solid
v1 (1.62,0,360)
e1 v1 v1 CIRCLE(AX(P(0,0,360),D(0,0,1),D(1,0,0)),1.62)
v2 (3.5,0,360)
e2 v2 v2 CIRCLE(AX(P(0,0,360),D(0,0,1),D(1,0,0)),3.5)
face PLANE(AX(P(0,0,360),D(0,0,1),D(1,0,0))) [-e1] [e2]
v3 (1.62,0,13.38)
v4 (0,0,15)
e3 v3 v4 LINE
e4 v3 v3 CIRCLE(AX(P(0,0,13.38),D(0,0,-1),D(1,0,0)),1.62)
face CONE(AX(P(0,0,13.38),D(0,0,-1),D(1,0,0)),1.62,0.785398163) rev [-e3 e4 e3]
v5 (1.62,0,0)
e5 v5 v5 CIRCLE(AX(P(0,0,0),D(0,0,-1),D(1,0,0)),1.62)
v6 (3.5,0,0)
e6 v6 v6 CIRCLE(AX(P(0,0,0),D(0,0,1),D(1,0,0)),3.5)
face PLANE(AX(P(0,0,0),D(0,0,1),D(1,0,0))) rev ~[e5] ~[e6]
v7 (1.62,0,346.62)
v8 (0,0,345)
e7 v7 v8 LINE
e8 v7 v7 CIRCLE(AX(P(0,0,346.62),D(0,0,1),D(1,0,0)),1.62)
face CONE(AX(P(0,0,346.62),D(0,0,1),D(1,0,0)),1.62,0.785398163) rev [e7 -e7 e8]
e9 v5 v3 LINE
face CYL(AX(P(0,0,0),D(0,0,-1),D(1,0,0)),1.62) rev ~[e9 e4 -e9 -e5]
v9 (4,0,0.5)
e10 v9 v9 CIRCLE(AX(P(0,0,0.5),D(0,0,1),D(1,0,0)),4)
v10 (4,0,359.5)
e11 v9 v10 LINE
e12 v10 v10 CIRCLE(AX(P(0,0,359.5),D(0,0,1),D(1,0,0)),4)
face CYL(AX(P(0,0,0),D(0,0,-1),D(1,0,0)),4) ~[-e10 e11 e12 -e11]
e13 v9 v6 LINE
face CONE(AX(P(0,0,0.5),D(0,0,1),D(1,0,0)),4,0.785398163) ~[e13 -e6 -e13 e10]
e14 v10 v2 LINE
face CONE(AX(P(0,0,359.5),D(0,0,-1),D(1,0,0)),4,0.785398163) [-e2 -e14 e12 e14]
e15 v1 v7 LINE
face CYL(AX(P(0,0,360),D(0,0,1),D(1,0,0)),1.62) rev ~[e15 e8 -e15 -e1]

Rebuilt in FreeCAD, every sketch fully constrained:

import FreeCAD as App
import Part
import Sketcher
from FreeCAD import Vector
Q = App.Units.Quantity


def edges_at(feature, points):
    """Names of the edges that pass closest to the given points."""
    edges = feature.Shape.Edges
    near = lambda p: min(range(len(edges)), key=lambda i: edges[i].distToShape(Part.Vertex(*p))[0])
    return sorted({f"Edge{near(p) + 1}" for p in points})

doc = App.newDocument("Part")
body = doc.addObject("PartDesign::Body", "Body")

sketch1 = doc.addObject("Sketcher::SketchObject", "Sketch")
body.addObject(sketch1)
sketch1.AttachmentSupport = (doc.XY_Plane, [""])
sketch1.MapMode = "FlatFace"
sketch1.addGeometry(Part.Circle(Vector(0, 0, 0), Vector(0, 0, 1), 4), False)
sketch1.addConstraint([
    Sketcher.Constraint("Coincident", 0, 3, -1, 1),
    Sketcher.Constraint("Diameter", 0, Q("8 mm")),
])
pad1 = doc.addObject("PartDesign::Pad", "Pad")
body.addObject(pad1)
pad1.Profile = sketch1
pad1.Length = 360
doc.recompute()

chamfer = doc.addObject("PartDesign::Chamfer", "Chamfer")
body.addObject(chamfer)
chamfer.Base = (pad1, edges_at(pad1, [(-4, 0, 0), (-4, 0, 360)]))
chamfer.Size = 0.5

sketch2 = doc.addObject("Sketcher::SketchObject", "Sketch001")
body.addObject(sketch2)
sketch2.AttachmentSupport = (doc.XY_Plane, [""])
sketch2.MapMode = "FlatFace"
sketch2.AttachmentOffset = App.Placement(Vector(0, 0, 360), App.Rotation())
sketch2.addGeometry(Part.Circle(Vector(0, 0, 0), Vector(0, 0, 1), 1.62), False)
sketch2.addConstraint([
    Sketcher.Constraint("Coincident", 0, 3, -1, 1),
    Sketcher.Constraint("Diameter", 0, Q("3.24 mm")),
])
pocket1 = doc.addObject("PartDesign::Pocket", "Pocket")
body.addObject(pocket1)
pocket1.Profile = sketch2
pocket1.Length = 15

sketch3 = doc.addObject("Sketcher::SketchObject", "Sketch002")
body.addObject(sketch3)
sketch3.AttachmentSupport = (doc.XY_Plane, [""])
sketch3.MapMode = "FlatFace"
sketch3.addGeometry(Part.Circle(Vector(0, 0, 0), Vector(0, 0, 1), 1.62), False)
sketch3.addConstraint([
    Sketcher.Constraint("Coincident", 0, 3, -1, 1),
    Sketcher.Constraint("Diameter", 0, Q("3.24 mm")),
])
pocket2 = doc.addObject("PartDesign::Pocket", "Pocket001")
body.addObject(pocket2)
pocket2.Profile = sketch3
pocket2.Length = 15
pocket2.Reversed = True
doc.recompute()

chamfer2 = doc.addObject("PartDesign::Chamfer", "Chamfer001")
body.addObject(chamfer2)
chamfer2.Base = (pocket2, edges_at(pocket2, [(-1.62, 0, 15), (-1.62, 0, 345)]))
chamfer2.Size = 1.62

doc.recompute()
